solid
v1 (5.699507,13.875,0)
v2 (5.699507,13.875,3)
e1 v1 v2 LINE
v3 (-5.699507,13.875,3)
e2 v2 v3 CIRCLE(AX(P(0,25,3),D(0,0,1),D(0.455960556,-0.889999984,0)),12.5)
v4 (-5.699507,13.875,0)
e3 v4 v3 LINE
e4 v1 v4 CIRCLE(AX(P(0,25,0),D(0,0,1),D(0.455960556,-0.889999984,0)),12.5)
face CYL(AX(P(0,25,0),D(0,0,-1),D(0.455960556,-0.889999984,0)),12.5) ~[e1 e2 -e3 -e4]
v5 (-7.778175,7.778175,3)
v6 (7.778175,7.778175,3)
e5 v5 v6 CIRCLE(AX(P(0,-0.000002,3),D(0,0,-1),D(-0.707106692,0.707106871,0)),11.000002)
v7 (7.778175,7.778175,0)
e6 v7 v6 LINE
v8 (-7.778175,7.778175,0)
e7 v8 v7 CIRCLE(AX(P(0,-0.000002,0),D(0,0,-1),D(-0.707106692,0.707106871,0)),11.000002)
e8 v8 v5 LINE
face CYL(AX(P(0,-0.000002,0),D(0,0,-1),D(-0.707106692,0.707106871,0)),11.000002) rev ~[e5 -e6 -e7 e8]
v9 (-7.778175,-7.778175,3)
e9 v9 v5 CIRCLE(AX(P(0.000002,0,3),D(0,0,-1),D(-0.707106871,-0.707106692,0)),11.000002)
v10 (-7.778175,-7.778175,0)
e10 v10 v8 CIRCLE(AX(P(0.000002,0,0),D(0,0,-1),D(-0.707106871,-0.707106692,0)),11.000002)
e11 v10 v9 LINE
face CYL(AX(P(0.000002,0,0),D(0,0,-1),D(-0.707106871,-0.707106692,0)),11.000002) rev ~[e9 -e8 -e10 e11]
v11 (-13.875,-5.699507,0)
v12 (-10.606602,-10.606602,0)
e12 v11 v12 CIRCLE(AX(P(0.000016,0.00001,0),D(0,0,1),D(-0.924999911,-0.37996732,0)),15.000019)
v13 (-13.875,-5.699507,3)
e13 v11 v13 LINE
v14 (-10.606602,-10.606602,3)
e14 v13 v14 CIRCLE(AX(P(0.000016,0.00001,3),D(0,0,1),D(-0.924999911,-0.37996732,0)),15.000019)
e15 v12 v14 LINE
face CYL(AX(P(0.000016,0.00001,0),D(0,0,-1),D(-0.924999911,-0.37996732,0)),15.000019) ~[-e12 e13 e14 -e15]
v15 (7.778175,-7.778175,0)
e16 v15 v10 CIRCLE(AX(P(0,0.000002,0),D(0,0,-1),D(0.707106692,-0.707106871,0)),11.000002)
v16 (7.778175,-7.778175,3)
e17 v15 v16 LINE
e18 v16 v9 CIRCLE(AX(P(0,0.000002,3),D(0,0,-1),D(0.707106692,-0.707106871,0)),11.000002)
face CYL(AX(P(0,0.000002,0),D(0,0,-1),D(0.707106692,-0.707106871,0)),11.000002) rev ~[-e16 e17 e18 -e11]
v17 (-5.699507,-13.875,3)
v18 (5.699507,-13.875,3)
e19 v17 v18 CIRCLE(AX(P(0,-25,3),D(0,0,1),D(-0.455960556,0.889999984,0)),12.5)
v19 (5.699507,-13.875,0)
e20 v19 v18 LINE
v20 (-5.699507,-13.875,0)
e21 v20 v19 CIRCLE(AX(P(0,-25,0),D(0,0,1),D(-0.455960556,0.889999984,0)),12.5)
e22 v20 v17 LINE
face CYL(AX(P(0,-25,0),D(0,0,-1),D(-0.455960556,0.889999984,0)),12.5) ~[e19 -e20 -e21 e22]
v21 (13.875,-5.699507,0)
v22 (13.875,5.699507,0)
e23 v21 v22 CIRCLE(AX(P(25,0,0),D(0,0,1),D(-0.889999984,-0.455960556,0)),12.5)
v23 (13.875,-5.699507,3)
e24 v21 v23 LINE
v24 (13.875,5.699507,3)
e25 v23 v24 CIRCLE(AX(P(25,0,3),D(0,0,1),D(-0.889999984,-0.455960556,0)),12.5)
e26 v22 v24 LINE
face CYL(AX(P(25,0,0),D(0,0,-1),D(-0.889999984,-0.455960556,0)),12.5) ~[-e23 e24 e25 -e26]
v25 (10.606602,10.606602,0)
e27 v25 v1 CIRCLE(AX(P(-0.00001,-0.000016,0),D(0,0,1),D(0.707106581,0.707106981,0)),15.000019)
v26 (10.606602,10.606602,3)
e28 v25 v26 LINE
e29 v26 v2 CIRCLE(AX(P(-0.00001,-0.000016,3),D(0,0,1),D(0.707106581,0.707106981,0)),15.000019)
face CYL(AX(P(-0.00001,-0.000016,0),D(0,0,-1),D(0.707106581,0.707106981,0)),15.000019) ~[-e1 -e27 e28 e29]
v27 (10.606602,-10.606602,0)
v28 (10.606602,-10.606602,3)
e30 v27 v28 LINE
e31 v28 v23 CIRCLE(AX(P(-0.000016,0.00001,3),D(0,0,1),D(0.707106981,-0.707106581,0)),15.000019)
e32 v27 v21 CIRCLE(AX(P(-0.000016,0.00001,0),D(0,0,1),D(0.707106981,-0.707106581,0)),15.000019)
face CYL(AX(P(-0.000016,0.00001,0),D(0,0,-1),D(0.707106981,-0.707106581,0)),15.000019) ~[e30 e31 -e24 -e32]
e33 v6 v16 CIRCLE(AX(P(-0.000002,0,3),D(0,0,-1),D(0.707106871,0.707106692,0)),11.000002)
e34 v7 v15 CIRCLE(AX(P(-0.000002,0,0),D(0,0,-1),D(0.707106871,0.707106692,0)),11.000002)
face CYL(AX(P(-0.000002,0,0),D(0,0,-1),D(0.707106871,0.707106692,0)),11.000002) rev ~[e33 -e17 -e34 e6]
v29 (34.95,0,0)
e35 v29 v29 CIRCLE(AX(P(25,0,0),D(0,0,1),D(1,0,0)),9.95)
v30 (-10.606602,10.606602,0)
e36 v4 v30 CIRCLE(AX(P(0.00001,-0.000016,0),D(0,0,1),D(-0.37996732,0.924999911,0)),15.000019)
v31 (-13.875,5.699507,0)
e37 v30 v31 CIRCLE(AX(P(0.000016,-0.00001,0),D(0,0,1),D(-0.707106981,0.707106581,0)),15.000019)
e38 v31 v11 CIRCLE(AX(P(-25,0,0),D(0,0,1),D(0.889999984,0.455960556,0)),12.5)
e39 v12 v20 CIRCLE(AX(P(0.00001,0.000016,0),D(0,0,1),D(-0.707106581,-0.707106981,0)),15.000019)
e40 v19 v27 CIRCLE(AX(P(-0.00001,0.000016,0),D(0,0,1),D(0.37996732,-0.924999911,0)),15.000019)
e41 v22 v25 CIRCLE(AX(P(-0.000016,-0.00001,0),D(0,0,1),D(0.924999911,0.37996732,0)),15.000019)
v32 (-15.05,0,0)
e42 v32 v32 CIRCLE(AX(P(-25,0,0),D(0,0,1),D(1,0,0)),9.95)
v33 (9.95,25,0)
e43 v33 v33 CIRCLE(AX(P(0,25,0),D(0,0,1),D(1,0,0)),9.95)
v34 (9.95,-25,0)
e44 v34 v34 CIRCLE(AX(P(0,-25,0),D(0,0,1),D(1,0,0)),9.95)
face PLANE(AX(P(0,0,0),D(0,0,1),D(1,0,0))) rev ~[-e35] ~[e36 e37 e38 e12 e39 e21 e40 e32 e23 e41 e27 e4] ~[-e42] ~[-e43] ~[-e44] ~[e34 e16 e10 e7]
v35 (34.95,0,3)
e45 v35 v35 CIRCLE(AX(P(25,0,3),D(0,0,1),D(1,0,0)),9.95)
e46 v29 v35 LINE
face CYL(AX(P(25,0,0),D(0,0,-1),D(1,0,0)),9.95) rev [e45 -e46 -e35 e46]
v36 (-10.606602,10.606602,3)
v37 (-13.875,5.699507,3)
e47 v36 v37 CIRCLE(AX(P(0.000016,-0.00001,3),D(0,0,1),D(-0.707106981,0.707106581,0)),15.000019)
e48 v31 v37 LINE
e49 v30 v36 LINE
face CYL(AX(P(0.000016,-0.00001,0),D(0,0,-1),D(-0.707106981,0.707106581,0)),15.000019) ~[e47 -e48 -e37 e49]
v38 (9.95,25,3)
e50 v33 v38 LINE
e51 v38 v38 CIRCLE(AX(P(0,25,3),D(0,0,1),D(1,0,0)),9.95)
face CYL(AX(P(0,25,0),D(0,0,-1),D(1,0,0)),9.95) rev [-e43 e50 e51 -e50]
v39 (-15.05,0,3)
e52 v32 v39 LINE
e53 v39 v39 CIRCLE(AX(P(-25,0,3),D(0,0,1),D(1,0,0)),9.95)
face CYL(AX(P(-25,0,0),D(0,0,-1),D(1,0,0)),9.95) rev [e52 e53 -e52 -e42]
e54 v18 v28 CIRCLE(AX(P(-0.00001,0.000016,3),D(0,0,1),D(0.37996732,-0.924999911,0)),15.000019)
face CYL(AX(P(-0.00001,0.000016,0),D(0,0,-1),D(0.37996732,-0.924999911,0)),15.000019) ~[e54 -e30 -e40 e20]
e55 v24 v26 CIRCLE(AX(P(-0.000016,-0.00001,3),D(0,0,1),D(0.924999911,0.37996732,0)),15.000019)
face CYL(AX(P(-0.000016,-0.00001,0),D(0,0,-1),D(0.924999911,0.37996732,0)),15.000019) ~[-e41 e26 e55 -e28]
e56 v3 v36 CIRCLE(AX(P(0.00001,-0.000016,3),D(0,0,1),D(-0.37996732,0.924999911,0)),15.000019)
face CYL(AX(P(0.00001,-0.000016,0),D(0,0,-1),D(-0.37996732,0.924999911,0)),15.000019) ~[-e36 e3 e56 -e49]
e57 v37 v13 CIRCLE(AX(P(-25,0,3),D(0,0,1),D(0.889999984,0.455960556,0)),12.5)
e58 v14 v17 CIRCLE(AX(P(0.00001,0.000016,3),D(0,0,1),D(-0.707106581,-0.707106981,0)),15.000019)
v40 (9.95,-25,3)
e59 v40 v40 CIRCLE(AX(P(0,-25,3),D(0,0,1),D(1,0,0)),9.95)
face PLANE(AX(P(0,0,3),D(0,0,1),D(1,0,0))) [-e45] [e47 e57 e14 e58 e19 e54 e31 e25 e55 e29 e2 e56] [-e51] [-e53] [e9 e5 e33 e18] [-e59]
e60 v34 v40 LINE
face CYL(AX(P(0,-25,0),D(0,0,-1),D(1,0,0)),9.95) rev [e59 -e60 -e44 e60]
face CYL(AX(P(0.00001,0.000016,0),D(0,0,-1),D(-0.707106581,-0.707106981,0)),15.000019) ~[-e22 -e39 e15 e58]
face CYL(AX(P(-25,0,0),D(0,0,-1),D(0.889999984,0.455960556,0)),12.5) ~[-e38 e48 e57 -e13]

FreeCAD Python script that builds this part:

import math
import FreeCAD as App
import Part
import Sketcher
Q = App.Units.Quantity

doc = App.newDocument("Part")
params = doc.addObject("Spreadsheet::Sheet", "Params")
for row, (alias, value) in enumerate([
    ("sketch1_radius", "11.000002 mm"),
    ("sketch1_diameter", "19.9 mm"),
    ("sketch1_radius2", "12.5 mm"),
    ("pad1_length", "3 mm"),
], start=1):
    params.set(f"A{row}", alias)
    params.set(f"B{row}", "=" + value)
    params.setAlias(f"B{row}", alias)

body = doc.addObject("PartDesign::Body", "Body")

sketch1 = body.newObject("Sketcher::SketchObject", "Sketch")
sketch1.AttachmentSupport = (doc.getObject("XY_Plane"), [""])
sketch1.MapMode = "FlatFace"
sketch1.addGeometry(Part.ArcOfCircle(Part.Circle(App.Vector(0, 25, 0), App.Vector(0, 0, 1), 13), math.radians(-63), math.radians(243)), False)
sketch1.addGeometry(Part.ArcOfCircle(Part.Circle(App.Vector(0, 0, 0), App.Vector(0, 0, 1), 15), math.radians(112), math.radians(135)), False)
sketch1.addGeometry(Part.ArcOfCircle(Part.Circle(App.Vector(0, 0, 0), App.Vector(0, 0, 1), 15), math.radians(135), math.radians(158)), False)
sketch1.addGeometry(Part.ArcOfCircle(Part.Circle(App.Vector(-25, 0, 0), App.Vector(0, 0, 1), 13), math.radians(27), math.radians(333)), False)
sketch1.addGeometry(Part.ArcOfCircle(Part.Circle(App.Vector(0, 0, 0), App.Vector(0, 0, 1), 15), math.radians(-158), math.radians(-135)), False)
sketch1.addGeometry(Part.ArcOfCircle(Part.Circle(App.Vector(0, 0, 0), App.Vector(0, 0, 1), 15), math.radians(-135), math.radians(-112)), False)
sketch1.addGeometry(Part.ArcOfCircle(Part.Circle(App.Vector(0, -25, 0), App.Vector(0, 0, 1), 13), math.radians(117), math.radians(423)), False)
sketch1.addGeometry(Part.ArcOfCircle(Part.Circle(App.Vector(0, 0, 0), App.Vector(0, 0, 1), 15), math.radians(-68), math.radians(-45)), False)
sketch1.addGeometry(Part.ArcOfCircle(Part.Circle(App.Vector(0, 0, 0), App.Vector(0, 0, 1), 15), math.radians(-45), math.radians(-22)), False)
sketch1.addGeometry(Part.ArcOfCircle(Part.Circle(App.Vector(25, 0, 0), App.Vector(0, 0, 1), 13), math.radians(-153), math.radians(153)), False)
sketch1.addGeometry(Part.ArcOfCircle(Part.Circle(App.Vector(0, 0, 0), App.Vector(0, 0, 1), 15), math.radians(22), math.radians(45)), False)
sketch1.addGeometry(Part.ArcOfCircle(Part.Circle(App.Vector(0, 0, 0), App.Vector(0, 0, 1), 15), math.radians(45), math.radians(68)), False)
sketch1.addGeometry(Part.Circle(App.Vector(0, -25, 0), App.Vector(0, 0, 1), 10), False)
sketch1.addGeometry(Part.Circle(App.Vector(-25, 0, 0), App.Vector(0, 0, 1), 10), False)
sketch1.addGeometry(Part.ArcOfCircle(Part.Circle(App.Vector(0, 0, 0), App.Vector(0, 0, 1), 11), math.radians(135), math.radians(225)), False)
sketch1.addGeometry(Part.ArcOfCircle(Part.Circle(App.Vector(0, 0, 0), App.Vector(0, 0, 1), 11), math.radians(45), math.radians(135)), False)
sketch1.addGeometry(Part.ArcOfCircle(Part.Circle(App.Vector(0, 0, 0), App.Vector(0, 0, 1), 11), math.radians(-45), math.radians(45)), False)
sketch1.addGeometry(Part.ArcOfCircle(Part.Circle(App.Vector(0, 0, 0), App.Vector(0, 0, 1), 11), math.radians(-135), math.radians(-45)), False)
sketch1.addGeometry(Part.Circle(App.Vector(25, 0, 0), App.Vector(0, 0, 1), 10), False)
sketch1.addGeometry(Part.Circle(App.Vector(0, 25, 0), App.Vector(0, 0, 1), 10), False)
sketch1.addConstraint(Sketcher.Constraint("Coincident", 0, 2, 1, 1))
sketch1.addConstraint(Sketcher.Constraint("Tangent", 1, 2, 2, 1))
sketch1.addConstraint(Sketcher.Constraint("Coincident", 2, 2, 3, 1))
sketch1.addConstraint(Sketcher.Constraint("Coincident", 3, 2, 4, 1))
sketch1.addConstraint(Sketcher.Constraint("Tangent", 4, 2, 5, 1))
sketch1.addConstraint(Sketcher.Constraint("Coincident", 5, 2, 6, 1))
sketch1.addConstraint(Sketcher.Constraint("Coincident", 6, 2, 7, 1))
sketch1.addConstraint(Sketcher.Constraint("Tangent", 7, 2, 8, 1))
sketch1.addConstraint(Sketcher.Constraint("Coincident", 8, 2, 9, 1))
sketch1.addConstraint(Sketcher.Constraint("Coincident", 9, 2, 10, 1))
sketch1.addConstraint(Sketcher.Constraint("Tangent", 10, 2, 11, 1))
sketch1.addConstraint(Sketcher.Constraint("Coincident", 11, 2, 0, 1))
sketch1.addConstraint(Sketcher.Constraint("Tangent", 14, 1, 15, 2))
sketch1.addConstraint(Sketcher.Constraint("Tangent", 15, 1, 16, 2))
sketch1.addConstraint(Sketcher.Constraint("Tangent", 16, 1, 17, 2))
sketch1.addConstraint(Sketcher.Constraint("Tangent", 17, 1, 14, 2))
sketch1.addConstraint(Sketcher.Constraint("Coincident", 14, 3, -1, 1))
sketch1.addConstraint(Sketcher.Constraint("Coincident", 12, 3, 6, 3))
sketch1.addConstraint(Sketcher.Constraint("Coincident", 13, 3, 3, 3))
sketch1.addConstraint(Sketcher.Constraint("Coincident", 18, 3, 9, 3))
sketch1.addConstraint(Sketcher.Constraint("Coincident", 19, 3, 0, 3))
sketch1.addConstraint(Sketcher.Constraint("Equal", 1, 2))
sketch1.addConstraint(Sketcher.Constraint("Equal", 0, 3))
sketch1.addConstraint(Sketcher.Constraint("Equal", 2, 4))
sketch1.addConstraint(Sketcher.Constraint("Equal", 4, 5))
sketch1.addConstraint(Sketcher.Constraint("Equal", 3, 6))
sketch1.addConstraint(Sketcher.Constraint("Equal", 5, 7))
sketch1.addConstraint(Sketcher.Constraint("Equal", 7, 8))
sketch1.addConstraint(Sketcher.Constraint("Equal", 6, 9))
sketch1.addConstraint(Sketcher.Constraint("Equal", 8, 10))
sketch1.addConstraint(Sketcher.Constraint("Equal", 10, 11))
sketch1.addConstraint(Sketcher.Constraint("Equal", 12, 13))
sketch1.addConstraint(Sketcher.Constraint("Equal", 14, 15))
sketch1.addConstraint(Sketcher.Constraint("Equal", 13, 18))
sketch1.addConstraint(Sketcher.Constraint("Equal", 18, 19))
sketch1.addConstraint(Sketcher.Constraint("Symmetric", 0, 3, 6, 3, -1, 1))
sketch1.addConstraint(Sketcher.Constraint("Symmetric", 1, 3, 7, 3, -1, 1))
sketch1.addConstraint(Sketcher.Constraint("Symmetric", 3, 3, 9, 3, -1, 1))
sketch1.addConstraint(Sketcher.Constraint("Symmetric", 4, 3, 10, 3, -1, 1))
sketch1.addConstraint(Sketcher.Constraint("Symmetric", 4, 3, 7, 3, -2))
sketch1.addConstraint(Sketcher.Constraint("PointOnObject", 0, 3, -2))
sketch1.addConstraint(Sketcher.Constraint("PointOnObject", 3, 3, -1))
sketch1.addConstraint(Sketcher.Constraint("Horizontal", 4, 2, 7, 2))
sketch1.addConstraint(Sketcher.Constraint("Horizontal", 1, 2, 10, 2))
sketch1.addConstraint(Sketcher.Constraint("Horizontal", 14, 1, 15, 1))
sketch1.addConstraint(Sketcher.Constraint("Horizontal", 16, 1, 17, 1))
sketch1.addConstraint(Sketcher.Constraint("Vertical", 1, 2, 4, 2))
sketch1.addConstraint(Sketcher.Constraint("Vertical", 15, 1, 16, 1))
sketch1.addConstraint(Sketcher.Constraint("Radius", 14, Q("11.000002 mm")))
sketch1.addConstraint(Sketcher.Constraint("Diameter", 12, Q("19.9 mm")))
sketch1.addConstraint(Sketcher.Constraint("Radius", 0, Q("12.5 mm")))
sketch1.addConstraint(Sketcher.Constraint("DistanceY", -1, 1, 0, 3, Q("25 mm")))
sketch1.addConstraint(Sketcher.Constraint("DistanceX", 3, 3, -1, 1, Q("25 mm")))
sketch1.addConstraint(Sketcher.Constraint("Radius", 1, Q("15.000019 mm")))
sketch1.addConstraint(Sketcher.Constraint("DistanceY", -1, 1, 0, 2, Q("13.875 mm")))
sketch1.addConstraint(Sketcher.Constraint("DistanceX", 2, 2, -1, 1, Q("13.875 mm")))
sketch1.addConstraint(Sketcher.Constraint("DistanceX", 1, 2, -1, 1, Q("10.606602 mm")))
sketch1.addConstraint(Sketcher.Constraint("DistanceY", 2, 2, 14, 1, Q("2.078668 mm")))
sketch1.setExpression("Constraints[48]", "Params.sketch1_radius")
sketch1.setExpression("Constraints[49]", "Params.sketch1_diameter")
sketch1.setExpression("Constraints[50]", "Params.sketch1_radius2")
pad1 = body.newObject("PartDesign::Pad", "Pad")
pad1.Profile = sketch1
pad1.setExpression("Length", "Params.pad1_length")

doc.recompute()
